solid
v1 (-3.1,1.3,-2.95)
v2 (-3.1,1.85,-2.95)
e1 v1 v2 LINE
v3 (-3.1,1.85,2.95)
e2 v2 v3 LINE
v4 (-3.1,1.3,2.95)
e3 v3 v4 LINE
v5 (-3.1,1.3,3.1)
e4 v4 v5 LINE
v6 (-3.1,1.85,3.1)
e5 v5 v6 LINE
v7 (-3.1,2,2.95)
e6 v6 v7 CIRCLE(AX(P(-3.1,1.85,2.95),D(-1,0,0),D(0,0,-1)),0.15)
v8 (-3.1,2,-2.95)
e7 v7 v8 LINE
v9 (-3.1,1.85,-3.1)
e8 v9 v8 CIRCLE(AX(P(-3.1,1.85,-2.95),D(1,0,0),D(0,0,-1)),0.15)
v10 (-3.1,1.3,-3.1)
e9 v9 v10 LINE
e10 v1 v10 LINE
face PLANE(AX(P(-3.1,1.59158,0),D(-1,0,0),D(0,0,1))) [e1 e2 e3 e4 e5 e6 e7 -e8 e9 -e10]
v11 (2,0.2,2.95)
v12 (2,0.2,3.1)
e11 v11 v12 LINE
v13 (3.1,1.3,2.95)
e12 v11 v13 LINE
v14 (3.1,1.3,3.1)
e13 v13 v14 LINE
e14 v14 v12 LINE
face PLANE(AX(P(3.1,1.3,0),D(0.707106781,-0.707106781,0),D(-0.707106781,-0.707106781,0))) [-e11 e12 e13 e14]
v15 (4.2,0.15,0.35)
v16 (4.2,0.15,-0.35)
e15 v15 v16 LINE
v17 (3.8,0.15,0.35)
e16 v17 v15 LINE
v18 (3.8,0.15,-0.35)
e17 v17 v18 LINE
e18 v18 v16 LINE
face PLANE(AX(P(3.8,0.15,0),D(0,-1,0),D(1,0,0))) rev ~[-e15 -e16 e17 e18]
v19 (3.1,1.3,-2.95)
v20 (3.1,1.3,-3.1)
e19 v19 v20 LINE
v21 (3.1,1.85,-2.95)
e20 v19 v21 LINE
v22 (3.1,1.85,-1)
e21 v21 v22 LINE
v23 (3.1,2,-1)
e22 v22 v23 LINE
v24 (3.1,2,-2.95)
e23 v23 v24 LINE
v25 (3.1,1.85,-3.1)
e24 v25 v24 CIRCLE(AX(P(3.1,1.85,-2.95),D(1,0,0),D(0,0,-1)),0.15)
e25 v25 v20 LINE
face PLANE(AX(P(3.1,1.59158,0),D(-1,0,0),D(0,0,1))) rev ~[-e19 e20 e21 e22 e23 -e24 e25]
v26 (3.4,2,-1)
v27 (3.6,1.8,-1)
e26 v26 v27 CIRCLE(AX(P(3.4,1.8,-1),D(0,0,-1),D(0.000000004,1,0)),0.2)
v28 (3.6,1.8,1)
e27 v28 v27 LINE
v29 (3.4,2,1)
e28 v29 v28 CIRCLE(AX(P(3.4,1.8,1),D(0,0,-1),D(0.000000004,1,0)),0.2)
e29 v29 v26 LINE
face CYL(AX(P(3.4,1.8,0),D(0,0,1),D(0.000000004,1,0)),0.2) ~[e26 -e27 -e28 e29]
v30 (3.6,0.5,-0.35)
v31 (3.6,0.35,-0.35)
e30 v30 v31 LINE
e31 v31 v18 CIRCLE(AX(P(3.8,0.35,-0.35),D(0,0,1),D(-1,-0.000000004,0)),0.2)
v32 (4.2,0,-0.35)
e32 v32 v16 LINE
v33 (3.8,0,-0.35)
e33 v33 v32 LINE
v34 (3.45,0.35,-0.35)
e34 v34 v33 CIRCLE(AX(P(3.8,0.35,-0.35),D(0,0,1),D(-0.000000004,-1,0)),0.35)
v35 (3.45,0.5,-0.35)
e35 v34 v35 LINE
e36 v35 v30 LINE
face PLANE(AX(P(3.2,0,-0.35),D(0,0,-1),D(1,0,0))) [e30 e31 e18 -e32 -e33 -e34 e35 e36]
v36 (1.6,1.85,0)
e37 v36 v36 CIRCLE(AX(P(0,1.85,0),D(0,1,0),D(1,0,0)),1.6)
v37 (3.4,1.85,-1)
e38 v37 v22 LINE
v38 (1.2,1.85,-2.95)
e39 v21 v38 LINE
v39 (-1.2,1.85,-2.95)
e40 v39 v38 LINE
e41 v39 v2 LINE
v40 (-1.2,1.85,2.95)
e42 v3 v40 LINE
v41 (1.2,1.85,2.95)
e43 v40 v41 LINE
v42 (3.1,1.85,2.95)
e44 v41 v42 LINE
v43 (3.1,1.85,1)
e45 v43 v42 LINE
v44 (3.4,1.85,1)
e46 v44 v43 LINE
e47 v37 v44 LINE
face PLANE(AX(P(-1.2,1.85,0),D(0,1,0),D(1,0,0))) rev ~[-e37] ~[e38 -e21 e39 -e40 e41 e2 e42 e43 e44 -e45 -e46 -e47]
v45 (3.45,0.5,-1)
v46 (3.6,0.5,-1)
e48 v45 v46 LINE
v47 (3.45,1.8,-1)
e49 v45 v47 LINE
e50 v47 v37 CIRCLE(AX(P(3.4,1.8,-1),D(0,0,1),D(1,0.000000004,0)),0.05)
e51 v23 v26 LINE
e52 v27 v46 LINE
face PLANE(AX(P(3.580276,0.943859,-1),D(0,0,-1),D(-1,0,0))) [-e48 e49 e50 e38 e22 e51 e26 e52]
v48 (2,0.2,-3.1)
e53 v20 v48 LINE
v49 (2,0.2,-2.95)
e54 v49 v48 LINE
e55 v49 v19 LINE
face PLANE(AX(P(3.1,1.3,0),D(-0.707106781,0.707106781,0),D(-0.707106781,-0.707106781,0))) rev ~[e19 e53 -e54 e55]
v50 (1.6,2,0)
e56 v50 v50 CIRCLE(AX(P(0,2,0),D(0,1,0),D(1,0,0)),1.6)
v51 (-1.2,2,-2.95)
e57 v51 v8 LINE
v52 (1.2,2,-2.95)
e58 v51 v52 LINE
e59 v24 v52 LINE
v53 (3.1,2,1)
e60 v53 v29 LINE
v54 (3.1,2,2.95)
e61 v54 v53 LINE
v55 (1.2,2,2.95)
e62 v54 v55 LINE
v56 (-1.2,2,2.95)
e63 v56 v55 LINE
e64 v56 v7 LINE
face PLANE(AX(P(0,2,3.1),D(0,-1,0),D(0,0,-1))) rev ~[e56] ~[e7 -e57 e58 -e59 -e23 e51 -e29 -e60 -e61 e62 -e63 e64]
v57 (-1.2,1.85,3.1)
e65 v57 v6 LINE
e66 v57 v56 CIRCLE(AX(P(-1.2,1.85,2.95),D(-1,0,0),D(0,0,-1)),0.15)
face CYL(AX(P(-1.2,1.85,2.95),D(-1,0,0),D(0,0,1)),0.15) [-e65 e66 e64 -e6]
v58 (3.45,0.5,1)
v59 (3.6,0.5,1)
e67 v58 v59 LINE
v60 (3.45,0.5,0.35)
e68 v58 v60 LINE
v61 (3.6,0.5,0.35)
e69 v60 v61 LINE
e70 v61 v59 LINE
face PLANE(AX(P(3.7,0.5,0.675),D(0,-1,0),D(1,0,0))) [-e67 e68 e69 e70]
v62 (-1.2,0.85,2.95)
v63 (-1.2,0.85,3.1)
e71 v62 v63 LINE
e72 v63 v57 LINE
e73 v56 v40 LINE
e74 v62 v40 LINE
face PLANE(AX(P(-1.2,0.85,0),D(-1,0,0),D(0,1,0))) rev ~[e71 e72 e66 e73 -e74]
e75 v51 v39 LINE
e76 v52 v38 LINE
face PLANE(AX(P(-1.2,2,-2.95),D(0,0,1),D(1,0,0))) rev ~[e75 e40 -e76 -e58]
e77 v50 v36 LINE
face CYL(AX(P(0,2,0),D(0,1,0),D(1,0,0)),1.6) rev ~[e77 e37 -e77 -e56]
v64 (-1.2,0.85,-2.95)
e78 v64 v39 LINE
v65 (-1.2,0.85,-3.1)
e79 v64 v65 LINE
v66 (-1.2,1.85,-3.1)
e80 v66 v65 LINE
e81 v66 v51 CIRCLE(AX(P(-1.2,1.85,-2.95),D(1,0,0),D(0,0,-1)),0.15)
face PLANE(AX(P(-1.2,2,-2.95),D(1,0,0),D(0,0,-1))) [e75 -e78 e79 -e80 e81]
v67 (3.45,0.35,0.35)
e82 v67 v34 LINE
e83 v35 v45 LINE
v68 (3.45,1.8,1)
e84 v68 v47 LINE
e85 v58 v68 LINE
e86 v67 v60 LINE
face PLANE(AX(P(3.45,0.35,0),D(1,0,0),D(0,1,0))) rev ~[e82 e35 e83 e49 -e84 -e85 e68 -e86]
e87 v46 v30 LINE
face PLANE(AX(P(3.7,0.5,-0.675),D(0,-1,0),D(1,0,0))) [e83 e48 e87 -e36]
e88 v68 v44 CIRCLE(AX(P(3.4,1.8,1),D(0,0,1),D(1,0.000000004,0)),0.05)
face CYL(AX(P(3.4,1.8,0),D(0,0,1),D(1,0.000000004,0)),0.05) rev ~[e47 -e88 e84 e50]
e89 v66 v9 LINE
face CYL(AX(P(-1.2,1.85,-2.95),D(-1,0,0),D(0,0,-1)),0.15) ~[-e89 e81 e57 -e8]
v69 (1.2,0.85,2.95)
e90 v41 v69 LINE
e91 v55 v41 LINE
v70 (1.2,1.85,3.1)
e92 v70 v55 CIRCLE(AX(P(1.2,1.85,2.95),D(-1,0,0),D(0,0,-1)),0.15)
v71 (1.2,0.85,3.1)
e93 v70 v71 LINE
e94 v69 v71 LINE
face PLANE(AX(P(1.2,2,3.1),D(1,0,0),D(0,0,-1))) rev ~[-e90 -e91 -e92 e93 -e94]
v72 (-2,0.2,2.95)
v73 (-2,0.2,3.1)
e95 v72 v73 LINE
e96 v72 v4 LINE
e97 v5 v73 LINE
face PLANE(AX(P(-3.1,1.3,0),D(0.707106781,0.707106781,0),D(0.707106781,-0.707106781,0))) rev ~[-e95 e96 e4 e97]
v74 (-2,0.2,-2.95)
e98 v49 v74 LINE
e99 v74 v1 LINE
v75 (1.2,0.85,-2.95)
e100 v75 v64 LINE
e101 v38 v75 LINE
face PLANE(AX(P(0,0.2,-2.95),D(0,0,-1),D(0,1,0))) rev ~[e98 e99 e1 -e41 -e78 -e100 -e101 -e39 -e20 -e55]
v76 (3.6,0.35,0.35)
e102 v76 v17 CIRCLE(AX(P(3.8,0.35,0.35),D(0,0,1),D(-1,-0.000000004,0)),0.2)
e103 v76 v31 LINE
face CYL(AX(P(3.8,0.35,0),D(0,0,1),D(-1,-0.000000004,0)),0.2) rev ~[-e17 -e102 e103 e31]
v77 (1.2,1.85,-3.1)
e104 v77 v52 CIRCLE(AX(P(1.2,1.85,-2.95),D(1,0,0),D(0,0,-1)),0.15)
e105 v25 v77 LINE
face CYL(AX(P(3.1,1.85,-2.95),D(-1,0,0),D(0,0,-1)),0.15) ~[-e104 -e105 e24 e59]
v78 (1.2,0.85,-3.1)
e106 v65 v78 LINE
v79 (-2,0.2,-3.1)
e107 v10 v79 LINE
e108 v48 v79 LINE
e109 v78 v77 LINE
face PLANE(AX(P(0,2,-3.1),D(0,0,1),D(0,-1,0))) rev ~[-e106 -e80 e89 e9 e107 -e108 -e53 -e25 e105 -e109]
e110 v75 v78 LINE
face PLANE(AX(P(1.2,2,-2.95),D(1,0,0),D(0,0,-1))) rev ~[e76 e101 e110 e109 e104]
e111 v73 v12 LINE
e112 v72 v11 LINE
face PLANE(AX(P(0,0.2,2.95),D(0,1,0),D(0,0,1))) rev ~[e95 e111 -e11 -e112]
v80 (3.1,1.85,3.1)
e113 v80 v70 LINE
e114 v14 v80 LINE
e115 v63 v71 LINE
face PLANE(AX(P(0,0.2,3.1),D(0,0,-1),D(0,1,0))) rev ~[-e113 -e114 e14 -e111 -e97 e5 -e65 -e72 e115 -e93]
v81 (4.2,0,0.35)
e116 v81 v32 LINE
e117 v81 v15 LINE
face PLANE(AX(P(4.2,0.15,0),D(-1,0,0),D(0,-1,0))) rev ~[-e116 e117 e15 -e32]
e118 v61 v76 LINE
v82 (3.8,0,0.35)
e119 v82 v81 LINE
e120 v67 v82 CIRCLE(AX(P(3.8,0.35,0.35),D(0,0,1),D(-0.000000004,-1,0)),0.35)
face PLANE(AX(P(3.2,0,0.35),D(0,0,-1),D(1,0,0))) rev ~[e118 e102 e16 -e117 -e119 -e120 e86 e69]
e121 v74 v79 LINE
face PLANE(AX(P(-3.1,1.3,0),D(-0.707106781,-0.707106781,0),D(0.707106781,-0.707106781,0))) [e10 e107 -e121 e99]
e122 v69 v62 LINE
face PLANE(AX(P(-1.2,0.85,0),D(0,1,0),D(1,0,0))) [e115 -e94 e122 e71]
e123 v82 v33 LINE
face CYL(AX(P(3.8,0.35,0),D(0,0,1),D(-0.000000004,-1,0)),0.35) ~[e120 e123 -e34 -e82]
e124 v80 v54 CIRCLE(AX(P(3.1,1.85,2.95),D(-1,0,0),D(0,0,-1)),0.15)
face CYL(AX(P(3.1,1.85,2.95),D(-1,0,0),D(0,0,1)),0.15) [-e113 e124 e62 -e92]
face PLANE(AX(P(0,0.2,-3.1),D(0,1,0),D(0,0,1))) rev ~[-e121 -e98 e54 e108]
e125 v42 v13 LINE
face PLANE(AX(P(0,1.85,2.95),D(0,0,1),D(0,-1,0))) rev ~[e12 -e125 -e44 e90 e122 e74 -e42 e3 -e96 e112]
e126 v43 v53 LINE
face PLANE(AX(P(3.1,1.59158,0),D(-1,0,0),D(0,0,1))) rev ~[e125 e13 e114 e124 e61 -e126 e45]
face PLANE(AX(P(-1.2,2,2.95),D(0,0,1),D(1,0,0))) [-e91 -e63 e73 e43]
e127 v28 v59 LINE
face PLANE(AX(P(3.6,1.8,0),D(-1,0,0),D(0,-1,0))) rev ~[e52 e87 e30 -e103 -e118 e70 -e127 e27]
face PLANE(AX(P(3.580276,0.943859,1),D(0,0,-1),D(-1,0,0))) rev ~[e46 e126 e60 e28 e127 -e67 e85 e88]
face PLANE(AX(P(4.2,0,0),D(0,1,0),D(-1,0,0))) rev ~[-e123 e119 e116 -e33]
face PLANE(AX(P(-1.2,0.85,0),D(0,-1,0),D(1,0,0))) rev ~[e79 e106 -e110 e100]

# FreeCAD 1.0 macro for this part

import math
import FreeCAD as App
import Part
import Sketcher
from FreeCAD import Vector


def edges_at(feature, points):
    """Names of the edges that pass closest to the given points."""
    edges = feature.Shape.Edges
    near = lambda p: min(range(len(edges)), key=lambda i: edges[i].distToShape(Part.Vertex(*p))[0])
    return sorted({f"Edge{near(p) + 1}" for p in points})


def add_polygon(sketch, points):
    """Adds a closed chain of lines whose ends are joined by coincident constraints."""
    first, n = sketch.GeometryCount, len(points)
    for a, b in zip(points, points[1:] + points[:1]):
        sketch.addGeometry(Part.LineSegment(App.Vector(*a, 0), App.Vector(*b, 0)), False)
    for i in range(n):
        sketch.addConstraint(Sketcher.Constraint("Coincident", first + i, 2, first + (i + 1) % n, 1))

doc = App.newDocument("Part")
body = doc.addObject("PartDesign::Body", "Body")

# Sketch on YZ plane
sketch1 = body.newObject("Sketcher::SketchObject", "Sketch")
sketch1.AttachmentSupport = (doc.getObject("YZ_Plane"), [""])
sketch1.MapMode = "FlatFace"
add_polygon(sketch1, [(2, 3.1), (0.2, 3.1), (0.2, 2.95), (1.85, 2.95), (1.85, -2.95), (0.2, -2.95), (0.2, -3.1), (2, -3.1)])  # lines 0-7
sketch1.addConstraint([
    Sketcher.Constraint("Horizontal", 0),
    Sketcher.Constraint("Vertical", 1),
    Sketcher.Constraint("Horizontal", 2),
    Sketcher.Constraint("Vertical", 3),
    Sketcher.Constraint("Horizontal", 4),
    Sketcher.Constraint("Vertical", 5),
    Sketcher.Constraint("Horizontal", 6),
    Sketcher.Constraint("Vertical", 7),
    Sketcher.Constraint("Symmetric", 1, 2, 4, 2, -1),
    Sketcher.Constraint("Equal", 1, 5),
    Sketcher.Constraint("DistanceX", 0, 2, 0, 1, 1.8),
    Sketcher.Constraint("DistanceY", 3, 2, 3, 1, 5.9),
    Sketcher.Constraint("DistanceY", 7, 1, 7, 2, 6.2),
    Sketcher.Constraint("DistanceX", -1, 1, 6, 2, 2.0),
    Sketcher.Constraint("DistanceX", 2, 1, 2, 2, 1.65),
])
pad1 = body.newObject("PartDesign::Pad", "Pad")
pad1.Profile = sketch1
pad1.Length = 6.2
pad1.Midplane = True

# Sketch on XY plane
sketch2 = body.newObject("Sketcher::SketchObject", "Sketch001")
sketch2.AttachmentSupport = (doc.getObject("XY_Plane"), [""])
sketch2.MapMode = "FlatFace"
add_polygon(sketch2, [(-1.2, 1.85), (-1.2, 0.85), (1.2, 0.85), (1.2, 1.85)])  # lines 0-3
add_polygon(sketch2, [(-2, 0.2), (-3.1, 1.3), (-3.1, 0.2)])  # lines 4-6
add_polygon(sketch2, [(3.1, 0.2), (3.1, 1.3), (2, 0.2)])  # lines 7-9
sketch2.addConstraint([
    Sketcher.Constraint("Vertical", 0),
    Sketcher.Constraint("Horizontal", 1),
    Sketcher.Constraint("Vertical", 2),
    Sketcher.Constraint("Horizontal", 3),
    Sketcher.Constraint("Vertical", 5),
    Sketcher.Constraint("Horizontal", 6),
    Sketcher.Constraint("Vertical", 7),
    Sketcher.Constraint("Horizontal", 9),
    Sketcher.Constraint("Symmetric", 4, 2, 7, 2, -2),
    Sketcher.Constraint("Symmetric", 6, 2, 8, 2, -2),
    Sketcher.Constraint("Perpendicular", 4, 8),
    Sketcher.Constraint("DistanceY", 0, 2, 0, 1, 1.0),
    Sketcher.Constraint("DistanceX", 1, 1, 1, 2, 2.4),
    Sketcher.Constraint("DistanceX", 6, 1, 6, 2, 1.1),
    Sketcher.Constraint("DistanceX", 6, 2, -1, 1, 2.0),
    Sketcher.Constraint("DistanceX", 0, 2, -1, 1, 1.2),
    Sketcher.Constraint("DistanceY", -1, 1, 4, 2, 1.3),
    Sketcher.Constraint("DistanceY", -1, 1, 0, 2, 0.85),
])
pocket1 = body.newObject("PartDesign::Pocket", "Pocket")
pocket1.Profile = sketch2
pocket1.Type = "ThroughAll"
pocket1.Midplane = True

# Sketch on XZ plane
sketch3 = body.newObject("Sketcher::SketchObject", "Sketch002")
sketch3.AttachmentSupport = (doc.getObject("XZ_Plane"), [""])
sketch3.MapMode = "FlatFace"
sketch3.AttachmentOffset = App.Placement(Vector(0, 0, -2), App.Rotation())
add_polygon(sketch3, [(-1.2, -3.1), (-1.2, -2.95), (1.2, -2.95), (1.2, -3.1)])  # lines 0-3
add_polygon(sketch3, [(-1.2, 2.95), (-1.2, 3.1), (1.2, 3.1), (1.2, 2.95)])  # lines 4-7
sketch3.addConstraint([
    Sketcher.Constraint("Vertical", 0),
    Sketcher.Constraint("Horizontal", 1),
    Sketcher.Constraint("Vertical", 2),
    Sketcher.Constraint("Horizontal", 3),
    Sketcher.Constraint("Vertical", 4),
    Sketcher.Constraint("Horizontal", 5),
    Sketcher.Constraint("Vertical", 6),
    Sketcher.Constraint("Horizontal", 7),
    Sketcher.Constraint("Symmetric", 2, 2, 4, 2, -1, 1),
    Sketcher.Constraint("Symmetric", 0, 2, 6, 2, -1, 1),
    Sketcher.Constraint("Vertical", 3, 2, 4, 2),
    Sketcher.Constraint("DistanceX", 1, 1, 1, 2, 2.4),
    Sketcher.Constraint("DistanceY", 0, 1, 0, 2, 0.15),
    Sketcher.Constraint("DistanceY", 2, 2, -1, 1, 3.1),
])
pocket2 = body.newObject("PartDesign::Pocket", "Pocket001")
pocket2.Profile = sketch3
pocket2.Length = 1
pocket2.Reversed = True
doc.recompute()

fillet = body.newObject("PartDesign::Fillet", "Fillet")
fillet.Base = (pocket2, edges_at(pocket2, [
    (-2.15, 2, -3.1),
    (2.15, 2, -3.1),
    (-2.15, 2, 3.1),
    (2.15, 2, 3.1),
]))
fillet.Radius = 0.15

# Sketch on XZ plane
sketch4 = body.newObject("Sketcher::SketchObject", "Sketch003")
sketch4.AttachmentSupport = (doc.getObject("XZ_Plane"), [""])
sketch4.MapMode = "FlatFace"
sketch4.AttachmentOffset = App.Placement(Vector(0, 0, -2), App.Rotation())
sketch4.addGeometry(Part.Circle(Vector(0, 0, 0), Vector(0, 0, 1), 1.6), False)
sketch4.addConstraint([
    Sketcher.Constraint("Coincident", 0, 3, -1, 1),
    Sketcher.Constraint("Diameter", 0, 3.2),
])
pocket3 = body.newObject("PartDesign::Pocket", "Pocket002")
pocket3.Profile = sketch4
pocket3.Length = 1
pocket3.Reversed = True

# Sketch on XY plane
sketch5 = body.newObject("Sketcher::SketchObject", "Sketch004")
sketch5.AttachmentSupport = (doc.getObject("XY_Plane"), [""])
sketch5.MapMode = "FlatFace"
sketch5.addGeometry([
    Part.LineSegment(Vector(3.4, 2, 0), Vector(3.1, 2, 0)),  # 0
    Part.LineSegment(Vector(3.1, 2, 0), Vector(3.1, 1.85, 0)),  # 1
    Part.LineSegment(Vector(3.1, 1.85, 0), Vector(3.4, 1.85, 0)),  # 2
    Part.ArcOfCircle(Part.Circle(Vector(3.4, 1.8, 0), Vector(0, 0, 1), 0.05), math.radians(0), math.radians(90)),  # 3
    Part.LineSegment(Vector(3.45, 1.8, 0), Vector(3.45, 0.35, 0)),  # 4
    Part.ArcOfCircle(Part.Circle(Vector(3.8, 0.35, 0), Vector(0, 0, 1), 0.35), math.radians(-180), math.radians(-90)),  # 5
    Part.LineSegment(Vector(3.8, 0, 0), Vector(4.2, 0, 0)),  # 6
    Part.LineSegment(Vector(4.2, 0, 0), Vector(4.2, 0.15, 0)),  # 7
    Part.LineSegment(Vector(4.2, 0.15, 0), Vector(3.8, 0.15, 0)),  # 8
    Part.ArcOfCircle(Part.Circle(Vector(3.8, 0.35, 0), Vector(0, 0, 1), 0.2), math.radians(-180), math.radians(-90)),  # 9
    Part.LineSegment(Vector(3.6, 0.35, 0), Vector(3.6, 1.8, 0)),  # 10
    Part.ArcOfCircle(Part.Circle(Vector(3.4, 1.8, 0), Vector(0, 0, 1), 0.2), math.radians(0), math.radians(90)),  # 11
], False)
sketch5.addConstraint([
    Sketcher.Constraint("Coincident", 0, 2, 1, 1),
    Sketcher.Constraint("Coincident", 1, 2, 2, 1),
    Sketcher.Constraint("Tangent", 2, 2, 3, 2),
    Sketcher.Constraint("Tangent", 3, 1, 4, 1),
    Sketcher.Constraint("Tangent", 4, 2, 5, 1),
    Sketcher.Constraint("Tangent", 5, 2, 6, 1),
    Sketcher.Constraint("Coincident", 6, 2, 7, 1),
    Sketcher.Constraint("Coincident", 7, 2, 8, 1),
    Sketcher.Constraint("Tangent", 8, 2, 9, 2),
    Sketcher.Constraint("Tangent", 9, 1, 10, 1),
    Sketcher.Constraint("Tangent", 10, 2, 11, 1),
    Sketcher.Constraint("Tangent", 11, 2, 0, 1),
    Sketcher.Constraint("Horizontal", 0),
    Sketcher.Constraint("Vertical", 1),
    Sketcher.Constraint("Horizontal", 2),
    Sketcher.Constraint("Vertical", 4),
    Sketcher.Constraint("Horizontal", 6),
    Sketcher.Constraint("Vertical", 7),
    Sketcher.Constraint("Horizontal", 8),
    Sketcher.Constraint("Vertical", 10),
    Sketcher.Constraint("Coincident", 9, 3, 5, 3),
    Sketcher.Constraint("Coincident", 11, 3, 3, 3),
    Sketcher.Constraint("Equal", 9, 11),
    Sketcher.Constraint("PointOnObject", 5, 2, -1),
    Sketcher.Constraint("Radius", 9, 0.2),
    Sketcher.Constraint("Radius", 3, 0.05),
    Sketcher.Constraint("DistanceX", 0, 2, 0, 1, 0.3),
    Sketcher.Constraint("DistanceX", 6, 1, 6, 2, 0.4),
    Sketcher.Constraint("DistanceY", -1, 1, 0, 2, 2.0),
    Sketcher.Constraint("DistanceX", -1, 1, 3, 3, 3.4),
])
pad2 = body.newObject("PartDesign::Pad", "Pad001")
pad2.Profile = sketch5
pad2.Length = 2
pad2.Midplane = True

# Sketch on XZ plane
sketch6 = body.newObject("Sketcher::SketchObject", "Sketch005")
sketch6.AttachmentSupport = (doc.getObject("XZ_Plane"), [""])
sketch6.MapMode = "FlatFace"
add_polygon(sketch6, [(3.2, 1), (3.2, 0.35), (4.2, 0.35), (4.2, 1)])  # lines 0-3
add_polygon(sketch6, [(3.2, -0.35), (3.2, -1), (4.2, -1), (4.2, -0.35)])  # lines 4-7
sketch6.addConstraint([
    Sketcher.Constraint("Vertical", 0),
    Sketcher.Constraint("Horizontal", 1),
    Sketcher.Constraint("Vertical", 2),
    Sketcher.Constraint("Horizontal", 3),
    Sketcher.Constraint("Vertical", 4),
    Sketcher.Constraint("Horizontal", 5),
    Sketcher.Constraint("Vertical", 6),
    Sketcher.Constraint("Horizontal", 7),
    Sketcher.Constraint("Symmetric", 3, 2, 4, 2, -1),
    Sketcher.Constraint("Symmetric", 1, 2, 6, 2, -1),
    Sketcher.Constraint("DistanceX", 1, 1, 1, 2, 1.0),
    Sketcher.Constraint("DistanceY", -1, 1, 2, 2, 1.0),
    Sketcher.Constraint("DistanceY", 0, 2, 0, 1, 0.65),
    Sketcher.Constraint("DistanceX", -1, 1, 0, 2, 3.2),
])
pocket4 = body.newObject("PartDesign::Pocket", "Pocket003")
pocket4.Profile = sketch6
pocket4.Length = 0.5

doc.recompute()
